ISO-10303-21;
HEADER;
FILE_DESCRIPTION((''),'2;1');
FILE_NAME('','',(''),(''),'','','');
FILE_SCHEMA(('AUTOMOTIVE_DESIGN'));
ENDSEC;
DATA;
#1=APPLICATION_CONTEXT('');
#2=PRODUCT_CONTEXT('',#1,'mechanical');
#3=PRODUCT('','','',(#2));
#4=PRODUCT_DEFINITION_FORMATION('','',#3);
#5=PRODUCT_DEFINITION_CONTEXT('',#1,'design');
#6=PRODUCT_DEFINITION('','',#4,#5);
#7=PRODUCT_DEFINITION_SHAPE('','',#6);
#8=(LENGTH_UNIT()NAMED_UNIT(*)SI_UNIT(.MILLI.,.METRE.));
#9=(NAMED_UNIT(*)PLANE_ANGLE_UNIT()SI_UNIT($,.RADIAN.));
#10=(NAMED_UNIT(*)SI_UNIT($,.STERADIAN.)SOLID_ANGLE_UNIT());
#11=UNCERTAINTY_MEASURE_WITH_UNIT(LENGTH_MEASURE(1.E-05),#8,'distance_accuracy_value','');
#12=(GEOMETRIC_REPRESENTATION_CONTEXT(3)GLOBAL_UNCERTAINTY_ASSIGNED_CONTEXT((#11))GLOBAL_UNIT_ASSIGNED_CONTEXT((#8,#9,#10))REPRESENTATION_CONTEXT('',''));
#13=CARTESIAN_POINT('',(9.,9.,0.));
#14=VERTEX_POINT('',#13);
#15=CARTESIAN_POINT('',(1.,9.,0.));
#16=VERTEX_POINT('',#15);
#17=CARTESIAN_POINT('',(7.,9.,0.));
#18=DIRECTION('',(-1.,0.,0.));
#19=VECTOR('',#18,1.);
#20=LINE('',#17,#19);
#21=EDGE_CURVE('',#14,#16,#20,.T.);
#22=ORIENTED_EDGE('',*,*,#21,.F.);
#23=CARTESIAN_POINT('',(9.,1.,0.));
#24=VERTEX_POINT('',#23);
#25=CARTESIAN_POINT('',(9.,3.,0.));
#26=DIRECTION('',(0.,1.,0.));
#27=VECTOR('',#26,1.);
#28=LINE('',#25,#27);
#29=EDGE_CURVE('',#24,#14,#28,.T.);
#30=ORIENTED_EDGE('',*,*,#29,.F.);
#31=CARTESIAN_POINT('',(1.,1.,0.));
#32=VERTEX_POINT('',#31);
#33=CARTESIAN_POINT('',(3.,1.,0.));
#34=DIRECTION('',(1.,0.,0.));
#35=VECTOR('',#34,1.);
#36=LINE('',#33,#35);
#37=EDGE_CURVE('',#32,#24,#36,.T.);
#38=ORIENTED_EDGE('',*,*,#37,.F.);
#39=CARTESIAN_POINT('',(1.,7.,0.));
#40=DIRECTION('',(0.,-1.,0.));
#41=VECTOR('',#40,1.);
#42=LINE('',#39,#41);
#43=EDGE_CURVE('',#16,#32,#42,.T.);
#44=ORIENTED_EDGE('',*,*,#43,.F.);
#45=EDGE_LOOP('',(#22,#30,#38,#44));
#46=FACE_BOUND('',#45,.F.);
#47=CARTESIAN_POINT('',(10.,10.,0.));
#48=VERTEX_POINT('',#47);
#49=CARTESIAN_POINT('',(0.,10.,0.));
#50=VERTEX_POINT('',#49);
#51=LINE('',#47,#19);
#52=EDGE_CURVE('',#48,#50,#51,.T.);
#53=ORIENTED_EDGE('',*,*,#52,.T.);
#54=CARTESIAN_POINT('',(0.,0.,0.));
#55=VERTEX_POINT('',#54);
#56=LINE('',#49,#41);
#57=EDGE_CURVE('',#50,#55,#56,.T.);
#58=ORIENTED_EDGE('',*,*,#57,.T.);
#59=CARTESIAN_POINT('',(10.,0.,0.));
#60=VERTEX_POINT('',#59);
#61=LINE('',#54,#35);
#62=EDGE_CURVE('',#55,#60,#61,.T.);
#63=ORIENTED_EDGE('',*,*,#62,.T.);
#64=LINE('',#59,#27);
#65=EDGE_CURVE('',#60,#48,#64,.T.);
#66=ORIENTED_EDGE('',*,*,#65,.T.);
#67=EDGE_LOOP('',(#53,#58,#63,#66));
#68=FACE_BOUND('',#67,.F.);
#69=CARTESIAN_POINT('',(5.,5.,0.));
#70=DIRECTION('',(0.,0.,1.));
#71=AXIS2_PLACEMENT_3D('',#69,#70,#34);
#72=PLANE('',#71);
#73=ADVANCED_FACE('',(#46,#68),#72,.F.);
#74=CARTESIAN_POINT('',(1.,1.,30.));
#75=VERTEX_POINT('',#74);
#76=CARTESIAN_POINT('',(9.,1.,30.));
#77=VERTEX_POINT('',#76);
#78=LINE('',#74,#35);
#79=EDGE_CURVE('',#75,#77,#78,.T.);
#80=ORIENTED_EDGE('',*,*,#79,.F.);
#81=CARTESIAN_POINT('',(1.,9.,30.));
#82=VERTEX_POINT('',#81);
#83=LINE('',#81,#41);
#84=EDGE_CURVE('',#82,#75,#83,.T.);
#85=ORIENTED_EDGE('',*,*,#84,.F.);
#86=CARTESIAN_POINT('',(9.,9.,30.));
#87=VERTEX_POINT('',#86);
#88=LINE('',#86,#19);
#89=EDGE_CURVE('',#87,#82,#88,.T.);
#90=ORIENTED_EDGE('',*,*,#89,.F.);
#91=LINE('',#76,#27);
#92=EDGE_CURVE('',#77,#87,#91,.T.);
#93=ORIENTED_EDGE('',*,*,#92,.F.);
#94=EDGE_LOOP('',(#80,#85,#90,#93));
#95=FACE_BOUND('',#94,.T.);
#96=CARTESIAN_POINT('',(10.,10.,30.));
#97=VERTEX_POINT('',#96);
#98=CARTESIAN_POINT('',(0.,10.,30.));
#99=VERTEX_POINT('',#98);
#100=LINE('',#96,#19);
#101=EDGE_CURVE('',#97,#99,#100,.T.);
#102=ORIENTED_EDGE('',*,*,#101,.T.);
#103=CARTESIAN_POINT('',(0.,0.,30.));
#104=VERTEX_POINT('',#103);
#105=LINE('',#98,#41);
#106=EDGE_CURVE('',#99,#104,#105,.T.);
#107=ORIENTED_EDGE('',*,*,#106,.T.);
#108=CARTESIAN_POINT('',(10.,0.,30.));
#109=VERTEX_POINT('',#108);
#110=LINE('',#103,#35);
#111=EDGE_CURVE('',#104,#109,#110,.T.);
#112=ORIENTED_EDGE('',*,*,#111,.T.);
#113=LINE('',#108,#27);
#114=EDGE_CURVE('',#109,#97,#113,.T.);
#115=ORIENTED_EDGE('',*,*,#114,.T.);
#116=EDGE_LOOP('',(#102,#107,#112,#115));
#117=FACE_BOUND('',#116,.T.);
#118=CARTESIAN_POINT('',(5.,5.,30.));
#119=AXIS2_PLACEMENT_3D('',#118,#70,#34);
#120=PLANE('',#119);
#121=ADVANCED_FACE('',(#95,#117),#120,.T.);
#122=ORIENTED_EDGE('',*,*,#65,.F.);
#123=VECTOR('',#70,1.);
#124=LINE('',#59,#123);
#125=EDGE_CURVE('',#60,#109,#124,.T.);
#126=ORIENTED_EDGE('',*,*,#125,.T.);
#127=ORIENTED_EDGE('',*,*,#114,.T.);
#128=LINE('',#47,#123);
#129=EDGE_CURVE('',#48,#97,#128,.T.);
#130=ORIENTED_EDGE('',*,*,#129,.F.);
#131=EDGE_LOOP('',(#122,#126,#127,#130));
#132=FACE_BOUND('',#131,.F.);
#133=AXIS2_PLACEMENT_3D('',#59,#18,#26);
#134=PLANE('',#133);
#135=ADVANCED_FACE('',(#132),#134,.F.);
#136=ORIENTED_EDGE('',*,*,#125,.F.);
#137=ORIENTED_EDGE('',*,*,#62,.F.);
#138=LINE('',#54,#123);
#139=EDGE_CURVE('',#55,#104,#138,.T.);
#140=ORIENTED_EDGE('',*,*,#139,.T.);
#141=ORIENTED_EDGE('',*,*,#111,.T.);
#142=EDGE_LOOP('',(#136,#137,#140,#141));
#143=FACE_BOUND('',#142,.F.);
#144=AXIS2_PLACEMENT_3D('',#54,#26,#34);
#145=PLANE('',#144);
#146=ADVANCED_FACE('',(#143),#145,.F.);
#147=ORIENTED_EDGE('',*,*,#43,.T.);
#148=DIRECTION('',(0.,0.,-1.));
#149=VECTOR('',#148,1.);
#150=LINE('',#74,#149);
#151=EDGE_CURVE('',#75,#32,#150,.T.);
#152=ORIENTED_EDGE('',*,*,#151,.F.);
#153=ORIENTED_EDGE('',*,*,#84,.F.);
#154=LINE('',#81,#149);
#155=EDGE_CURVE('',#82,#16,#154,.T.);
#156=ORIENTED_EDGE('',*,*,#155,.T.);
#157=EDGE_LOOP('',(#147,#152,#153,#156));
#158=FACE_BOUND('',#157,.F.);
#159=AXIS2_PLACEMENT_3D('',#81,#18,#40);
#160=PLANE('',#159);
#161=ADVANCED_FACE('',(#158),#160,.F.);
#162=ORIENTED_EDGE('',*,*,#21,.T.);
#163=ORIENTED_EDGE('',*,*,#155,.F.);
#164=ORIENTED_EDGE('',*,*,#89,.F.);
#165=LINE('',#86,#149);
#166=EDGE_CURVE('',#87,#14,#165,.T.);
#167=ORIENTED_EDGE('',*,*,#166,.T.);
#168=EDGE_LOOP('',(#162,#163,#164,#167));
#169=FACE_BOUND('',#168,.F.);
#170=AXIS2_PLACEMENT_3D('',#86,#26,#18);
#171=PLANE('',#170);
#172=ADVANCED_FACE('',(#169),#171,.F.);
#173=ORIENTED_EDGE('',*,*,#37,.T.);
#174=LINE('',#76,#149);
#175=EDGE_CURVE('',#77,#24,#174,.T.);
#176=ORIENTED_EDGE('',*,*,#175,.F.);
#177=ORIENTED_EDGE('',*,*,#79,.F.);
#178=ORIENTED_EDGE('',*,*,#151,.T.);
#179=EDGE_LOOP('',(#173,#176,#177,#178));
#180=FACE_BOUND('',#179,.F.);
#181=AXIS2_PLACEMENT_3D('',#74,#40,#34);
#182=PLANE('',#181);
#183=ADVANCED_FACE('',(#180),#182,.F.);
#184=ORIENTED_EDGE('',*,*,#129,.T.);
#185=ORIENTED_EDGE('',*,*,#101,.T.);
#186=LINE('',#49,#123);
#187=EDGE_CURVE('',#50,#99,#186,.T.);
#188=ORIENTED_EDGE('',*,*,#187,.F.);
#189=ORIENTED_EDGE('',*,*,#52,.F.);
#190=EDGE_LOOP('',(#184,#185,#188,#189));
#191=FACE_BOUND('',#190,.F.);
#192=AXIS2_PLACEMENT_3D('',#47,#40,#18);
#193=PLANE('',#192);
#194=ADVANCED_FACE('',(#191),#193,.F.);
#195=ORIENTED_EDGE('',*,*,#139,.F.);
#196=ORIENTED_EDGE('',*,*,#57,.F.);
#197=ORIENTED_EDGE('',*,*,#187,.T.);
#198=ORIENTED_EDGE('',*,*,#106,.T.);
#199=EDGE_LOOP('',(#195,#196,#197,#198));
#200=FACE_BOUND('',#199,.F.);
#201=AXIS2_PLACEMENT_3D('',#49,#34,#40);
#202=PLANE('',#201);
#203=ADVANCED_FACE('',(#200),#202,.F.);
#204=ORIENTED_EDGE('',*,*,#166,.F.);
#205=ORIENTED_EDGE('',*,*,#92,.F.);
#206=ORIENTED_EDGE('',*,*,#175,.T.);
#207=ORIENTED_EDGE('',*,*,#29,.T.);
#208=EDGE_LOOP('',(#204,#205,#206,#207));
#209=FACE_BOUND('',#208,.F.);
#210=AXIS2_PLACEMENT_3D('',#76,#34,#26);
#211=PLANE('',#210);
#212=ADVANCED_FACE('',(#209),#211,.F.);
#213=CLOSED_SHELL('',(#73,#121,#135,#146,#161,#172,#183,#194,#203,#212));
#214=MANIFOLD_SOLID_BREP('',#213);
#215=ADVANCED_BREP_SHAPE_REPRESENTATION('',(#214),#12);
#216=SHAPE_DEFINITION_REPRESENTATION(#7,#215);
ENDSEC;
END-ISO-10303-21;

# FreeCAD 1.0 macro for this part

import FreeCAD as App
import Part
import Sketcher


def add_polygon(sketch, points):
    """Adds a closed chain of lines whose ends are joined by coincident constraints."""
    first, n = sketch.GeometryCount, len(points)
    for a, b in zip(points, points[1:] + points[:1]):
        sketch.addGeometry(Part.LineSegment(App.Vector(*a, 0), App.Vector(*b, 0)), False)
    for i in range(n):
        sketch.addConstraint(Sketcher.Constraint("Coincident", first + i, 2, first + (i + 1) % n, 1))

doc = App.newDocument("Part")
body = doc.addObject("PartDesign::Body", "Body")

sketch1 = doc.addObject("Sketcher::SketchObject", "Sketch")
body.addObject(sketch1)
sketch1.AttachmentSupport = (doc.XY_Plane, [""])
sketch1.MapMode = "FlatFace"
add_polygon(sketch1, [(0, 10), (0, 0), (10, 0), (10, 10)])
sketch1.addConstraint([
    Sketcher.Constraint("Vertical", 0),
    Sketcher.Constraint("Horizontal", 1),
    Sketcher.Constraint("Vertical", 2),
    Sketcher.Constraint("Horizontal", 3),
    Sketcher.Constraint("Coincident", 0, 2, -1, 1),
    Sketcher.Constraint("Equal", 3, 0),
    Sketcher.Constraint("DistanceX", 1, 1, 1, 2, 10.0),
])
pad1 = doc.addObject("PartDesign::Pad", "Pad")
body.addObject(pad1)
pad1.Profile = sketch1
pad1.Length = 30

sketch2 = doc.addObject("Sketcher::SketchObject", "Sketch001")
body.addObject(sketch2)
sketch2.AttachmentSupport = (doc.XY_Plane, [""])
sketch2.MapMode = "FlatFace"
sketch2.AttachmentOffset = App.Placement(App.Vector(0, 0, 30), App.Rotation())
add_polygon(sketch2, [(1, 9), (1, 1), (9, 1), (9, 9)])
sketch2.addConstraint([
    Sketcher.Constraint("Vertical", 0),
    Sketcher.Constraint("Horizontal", 1),
    Sketcher.Constraint("Vertical", 2),
    Sketcher.Constraint("Horizontal", 3),
    Sketcher.Constraint("Equal", 3, 0),
    Sketcher.Constraint("DistanceX", 1, 1, 1, 2, 8.0),
    Sketcher.Constraint("DistanceX", -1, 1, 0, 2, 1.0),
    Sketcher.Constraint("DistanceY", -1, 1, 0, 2, 1.0),
])
pocket1 = doc.addObject("PartDesign::Pocket", "Pocket")
body.addObject(pocket1)
pocket1.Profile = sketch2
pocket1.Length = 90.0702

doc.recompute()
